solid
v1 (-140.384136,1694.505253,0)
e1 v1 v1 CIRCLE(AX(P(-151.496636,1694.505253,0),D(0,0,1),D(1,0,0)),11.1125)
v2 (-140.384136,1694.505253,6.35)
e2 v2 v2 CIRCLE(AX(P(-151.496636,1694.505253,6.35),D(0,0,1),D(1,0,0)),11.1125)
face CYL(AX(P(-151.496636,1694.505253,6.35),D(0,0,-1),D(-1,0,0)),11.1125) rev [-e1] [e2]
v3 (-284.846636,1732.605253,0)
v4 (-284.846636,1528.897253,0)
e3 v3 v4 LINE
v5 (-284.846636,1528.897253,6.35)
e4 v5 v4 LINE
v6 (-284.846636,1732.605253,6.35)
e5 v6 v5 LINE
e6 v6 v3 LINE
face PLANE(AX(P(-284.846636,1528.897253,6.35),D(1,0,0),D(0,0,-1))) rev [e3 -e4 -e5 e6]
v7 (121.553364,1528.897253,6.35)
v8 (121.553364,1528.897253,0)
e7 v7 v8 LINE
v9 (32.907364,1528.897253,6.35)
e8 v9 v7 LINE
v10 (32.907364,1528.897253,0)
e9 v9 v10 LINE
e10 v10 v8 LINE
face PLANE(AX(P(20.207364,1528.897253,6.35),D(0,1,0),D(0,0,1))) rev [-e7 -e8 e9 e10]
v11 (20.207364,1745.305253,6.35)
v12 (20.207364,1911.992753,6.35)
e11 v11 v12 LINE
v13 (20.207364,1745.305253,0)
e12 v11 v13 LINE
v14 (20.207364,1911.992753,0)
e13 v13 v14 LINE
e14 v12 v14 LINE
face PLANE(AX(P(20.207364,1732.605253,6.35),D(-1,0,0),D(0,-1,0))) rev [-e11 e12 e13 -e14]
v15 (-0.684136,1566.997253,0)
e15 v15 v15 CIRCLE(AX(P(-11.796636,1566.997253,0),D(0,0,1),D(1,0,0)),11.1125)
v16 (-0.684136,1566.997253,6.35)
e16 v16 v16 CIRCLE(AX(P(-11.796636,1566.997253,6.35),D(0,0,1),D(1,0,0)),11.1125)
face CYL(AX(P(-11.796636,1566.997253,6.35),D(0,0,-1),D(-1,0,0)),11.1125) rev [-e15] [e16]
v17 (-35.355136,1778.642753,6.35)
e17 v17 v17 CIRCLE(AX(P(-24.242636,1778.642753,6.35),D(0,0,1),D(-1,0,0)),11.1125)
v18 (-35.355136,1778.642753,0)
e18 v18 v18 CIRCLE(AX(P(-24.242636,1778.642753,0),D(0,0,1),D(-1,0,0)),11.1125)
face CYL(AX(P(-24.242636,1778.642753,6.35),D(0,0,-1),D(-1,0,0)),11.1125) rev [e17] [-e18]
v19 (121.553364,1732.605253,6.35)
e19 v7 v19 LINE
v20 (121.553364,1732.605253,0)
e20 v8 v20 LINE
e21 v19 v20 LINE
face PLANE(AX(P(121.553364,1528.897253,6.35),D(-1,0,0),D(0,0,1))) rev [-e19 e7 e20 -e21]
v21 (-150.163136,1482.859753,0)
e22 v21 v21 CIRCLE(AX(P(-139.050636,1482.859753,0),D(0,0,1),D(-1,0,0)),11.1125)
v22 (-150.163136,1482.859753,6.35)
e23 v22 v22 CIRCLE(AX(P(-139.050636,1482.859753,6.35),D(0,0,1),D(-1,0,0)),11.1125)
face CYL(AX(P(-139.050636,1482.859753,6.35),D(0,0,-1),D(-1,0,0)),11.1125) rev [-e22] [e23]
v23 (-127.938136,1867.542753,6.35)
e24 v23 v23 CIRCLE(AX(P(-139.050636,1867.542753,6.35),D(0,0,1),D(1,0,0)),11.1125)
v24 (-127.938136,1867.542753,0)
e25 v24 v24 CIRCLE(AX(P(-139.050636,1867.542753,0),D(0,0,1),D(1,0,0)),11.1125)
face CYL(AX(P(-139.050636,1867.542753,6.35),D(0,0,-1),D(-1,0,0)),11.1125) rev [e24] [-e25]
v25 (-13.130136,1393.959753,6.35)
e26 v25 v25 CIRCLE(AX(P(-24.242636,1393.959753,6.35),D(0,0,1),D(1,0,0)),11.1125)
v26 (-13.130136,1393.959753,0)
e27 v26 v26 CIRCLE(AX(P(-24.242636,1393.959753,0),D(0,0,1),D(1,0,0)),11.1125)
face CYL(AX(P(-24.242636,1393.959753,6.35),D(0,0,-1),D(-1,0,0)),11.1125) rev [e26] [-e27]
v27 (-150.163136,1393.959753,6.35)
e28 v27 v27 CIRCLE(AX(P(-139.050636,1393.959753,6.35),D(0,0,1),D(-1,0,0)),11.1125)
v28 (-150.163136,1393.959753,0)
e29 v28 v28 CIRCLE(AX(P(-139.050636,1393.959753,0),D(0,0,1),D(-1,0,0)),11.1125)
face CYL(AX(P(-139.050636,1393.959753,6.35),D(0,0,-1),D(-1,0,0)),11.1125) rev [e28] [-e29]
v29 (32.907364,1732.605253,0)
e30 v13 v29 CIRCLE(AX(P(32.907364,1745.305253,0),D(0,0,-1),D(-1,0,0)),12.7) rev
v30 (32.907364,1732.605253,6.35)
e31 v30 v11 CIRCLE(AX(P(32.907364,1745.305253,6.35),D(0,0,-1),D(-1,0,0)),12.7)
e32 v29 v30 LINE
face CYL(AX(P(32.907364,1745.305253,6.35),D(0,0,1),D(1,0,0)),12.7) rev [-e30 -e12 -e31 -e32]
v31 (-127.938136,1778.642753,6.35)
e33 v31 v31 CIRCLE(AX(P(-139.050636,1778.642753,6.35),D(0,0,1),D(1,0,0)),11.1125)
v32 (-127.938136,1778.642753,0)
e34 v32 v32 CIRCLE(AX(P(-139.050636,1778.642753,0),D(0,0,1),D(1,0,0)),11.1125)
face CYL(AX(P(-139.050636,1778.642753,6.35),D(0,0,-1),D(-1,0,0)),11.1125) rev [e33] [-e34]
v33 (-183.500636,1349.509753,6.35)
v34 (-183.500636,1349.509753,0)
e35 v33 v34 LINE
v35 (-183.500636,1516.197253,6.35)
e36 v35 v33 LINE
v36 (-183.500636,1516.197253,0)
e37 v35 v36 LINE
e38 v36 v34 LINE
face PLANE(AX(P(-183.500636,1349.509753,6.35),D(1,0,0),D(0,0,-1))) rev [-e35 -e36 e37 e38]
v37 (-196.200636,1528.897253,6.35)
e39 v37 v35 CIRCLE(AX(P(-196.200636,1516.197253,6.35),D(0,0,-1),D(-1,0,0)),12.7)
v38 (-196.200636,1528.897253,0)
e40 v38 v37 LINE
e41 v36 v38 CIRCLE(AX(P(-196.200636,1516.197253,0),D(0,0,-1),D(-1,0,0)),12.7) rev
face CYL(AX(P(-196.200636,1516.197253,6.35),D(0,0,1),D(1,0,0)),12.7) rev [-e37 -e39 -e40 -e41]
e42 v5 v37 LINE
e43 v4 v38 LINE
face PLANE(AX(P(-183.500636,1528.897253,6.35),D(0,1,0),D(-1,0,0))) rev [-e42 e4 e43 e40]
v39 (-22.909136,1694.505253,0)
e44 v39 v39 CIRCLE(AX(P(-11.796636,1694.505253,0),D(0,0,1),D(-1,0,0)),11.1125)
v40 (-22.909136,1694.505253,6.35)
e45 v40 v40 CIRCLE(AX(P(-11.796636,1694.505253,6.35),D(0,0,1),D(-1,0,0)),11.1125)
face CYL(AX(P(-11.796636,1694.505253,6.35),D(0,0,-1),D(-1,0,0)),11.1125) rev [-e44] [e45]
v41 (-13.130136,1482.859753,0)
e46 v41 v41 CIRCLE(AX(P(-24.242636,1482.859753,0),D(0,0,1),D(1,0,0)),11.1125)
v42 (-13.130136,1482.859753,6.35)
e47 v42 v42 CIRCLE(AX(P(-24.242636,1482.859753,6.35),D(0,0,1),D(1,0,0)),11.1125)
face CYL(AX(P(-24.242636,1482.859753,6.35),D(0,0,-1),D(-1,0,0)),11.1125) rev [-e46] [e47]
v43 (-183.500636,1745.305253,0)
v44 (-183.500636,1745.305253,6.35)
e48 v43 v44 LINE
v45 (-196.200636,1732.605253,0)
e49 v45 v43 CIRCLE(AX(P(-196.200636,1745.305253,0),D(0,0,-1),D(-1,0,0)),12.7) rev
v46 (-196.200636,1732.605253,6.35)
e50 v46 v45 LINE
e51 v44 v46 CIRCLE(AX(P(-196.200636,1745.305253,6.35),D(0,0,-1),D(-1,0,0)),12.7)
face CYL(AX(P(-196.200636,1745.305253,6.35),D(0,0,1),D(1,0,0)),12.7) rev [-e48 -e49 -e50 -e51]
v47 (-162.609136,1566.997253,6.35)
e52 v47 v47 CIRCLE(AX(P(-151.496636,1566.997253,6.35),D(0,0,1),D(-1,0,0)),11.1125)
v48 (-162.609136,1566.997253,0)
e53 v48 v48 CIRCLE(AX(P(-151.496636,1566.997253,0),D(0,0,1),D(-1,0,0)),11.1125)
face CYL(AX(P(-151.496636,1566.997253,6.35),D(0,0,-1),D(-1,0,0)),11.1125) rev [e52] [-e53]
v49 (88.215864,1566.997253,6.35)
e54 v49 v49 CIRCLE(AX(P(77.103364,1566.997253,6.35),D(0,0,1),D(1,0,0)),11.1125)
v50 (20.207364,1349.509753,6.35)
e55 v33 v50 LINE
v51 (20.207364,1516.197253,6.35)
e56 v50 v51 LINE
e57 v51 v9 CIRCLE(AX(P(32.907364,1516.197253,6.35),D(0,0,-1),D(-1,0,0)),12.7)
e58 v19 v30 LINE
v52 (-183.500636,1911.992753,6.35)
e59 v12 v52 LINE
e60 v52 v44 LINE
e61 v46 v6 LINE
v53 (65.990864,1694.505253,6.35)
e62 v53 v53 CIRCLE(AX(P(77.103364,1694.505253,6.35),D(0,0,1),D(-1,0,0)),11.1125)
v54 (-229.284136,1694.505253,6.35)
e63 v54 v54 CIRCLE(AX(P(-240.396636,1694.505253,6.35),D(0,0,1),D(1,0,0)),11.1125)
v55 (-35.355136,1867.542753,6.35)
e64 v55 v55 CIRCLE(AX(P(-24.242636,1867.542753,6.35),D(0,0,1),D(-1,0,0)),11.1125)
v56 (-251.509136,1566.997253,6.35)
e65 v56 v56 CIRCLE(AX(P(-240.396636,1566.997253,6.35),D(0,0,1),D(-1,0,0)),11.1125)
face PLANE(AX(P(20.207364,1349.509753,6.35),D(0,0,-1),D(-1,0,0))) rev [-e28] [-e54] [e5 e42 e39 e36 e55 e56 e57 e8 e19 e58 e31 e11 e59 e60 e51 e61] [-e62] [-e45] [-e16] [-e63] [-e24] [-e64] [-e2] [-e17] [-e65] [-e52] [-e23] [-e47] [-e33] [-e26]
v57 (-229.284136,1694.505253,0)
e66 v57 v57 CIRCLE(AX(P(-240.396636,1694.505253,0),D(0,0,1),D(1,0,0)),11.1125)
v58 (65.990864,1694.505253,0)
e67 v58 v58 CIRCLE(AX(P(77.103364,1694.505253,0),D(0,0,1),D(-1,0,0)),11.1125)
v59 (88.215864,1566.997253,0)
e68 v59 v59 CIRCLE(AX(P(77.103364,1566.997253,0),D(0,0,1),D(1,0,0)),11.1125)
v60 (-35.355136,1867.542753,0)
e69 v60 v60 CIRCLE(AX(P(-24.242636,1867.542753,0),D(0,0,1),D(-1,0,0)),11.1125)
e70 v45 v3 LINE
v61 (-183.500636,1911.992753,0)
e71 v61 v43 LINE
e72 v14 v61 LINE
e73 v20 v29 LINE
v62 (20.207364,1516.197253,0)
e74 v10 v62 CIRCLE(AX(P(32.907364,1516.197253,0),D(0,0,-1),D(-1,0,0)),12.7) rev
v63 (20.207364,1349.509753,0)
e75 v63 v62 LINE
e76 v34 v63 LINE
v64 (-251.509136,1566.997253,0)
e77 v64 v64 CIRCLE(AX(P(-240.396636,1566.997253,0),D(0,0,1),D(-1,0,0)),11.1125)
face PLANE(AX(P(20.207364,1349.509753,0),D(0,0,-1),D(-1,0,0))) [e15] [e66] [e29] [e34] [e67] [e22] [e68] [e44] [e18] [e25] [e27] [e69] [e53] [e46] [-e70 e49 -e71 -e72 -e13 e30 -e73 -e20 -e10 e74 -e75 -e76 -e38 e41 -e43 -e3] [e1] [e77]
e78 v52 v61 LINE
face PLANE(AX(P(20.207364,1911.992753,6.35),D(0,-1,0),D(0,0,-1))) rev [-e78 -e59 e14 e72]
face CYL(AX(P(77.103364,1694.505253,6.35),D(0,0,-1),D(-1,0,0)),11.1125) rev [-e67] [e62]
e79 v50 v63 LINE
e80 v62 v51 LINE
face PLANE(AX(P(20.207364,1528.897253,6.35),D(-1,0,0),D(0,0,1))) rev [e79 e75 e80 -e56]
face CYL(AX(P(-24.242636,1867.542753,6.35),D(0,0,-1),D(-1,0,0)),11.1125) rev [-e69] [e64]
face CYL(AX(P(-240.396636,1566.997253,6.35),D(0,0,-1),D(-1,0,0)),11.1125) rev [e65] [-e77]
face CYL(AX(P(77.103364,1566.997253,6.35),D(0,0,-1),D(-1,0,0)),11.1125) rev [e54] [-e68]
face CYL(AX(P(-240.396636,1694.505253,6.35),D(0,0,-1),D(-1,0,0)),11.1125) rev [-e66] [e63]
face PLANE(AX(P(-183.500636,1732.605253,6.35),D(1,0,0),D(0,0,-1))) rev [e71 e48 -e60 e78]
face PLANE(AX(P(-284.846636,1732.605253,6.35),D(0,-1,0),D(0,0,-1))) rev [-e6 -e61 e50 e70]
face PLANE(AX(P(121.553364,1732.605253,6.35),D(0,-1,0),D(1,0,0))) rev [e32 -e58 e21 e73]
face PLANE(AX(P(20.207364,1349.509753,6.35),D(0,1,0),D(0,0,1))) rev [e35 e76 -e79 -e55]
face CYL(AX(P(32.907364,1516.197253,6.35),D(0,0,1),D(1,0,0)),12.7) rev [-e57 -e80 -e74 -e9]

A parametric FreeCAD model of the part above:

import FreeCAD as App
import Part
import Sketcher
from FreeCAD import Vector
Q = App.Units.Quantity


def edges_at(feature, points):
    """Names of the edges that pass closest to the given points."""
    edges = feature.Shape.Edges
    near = lambda p: min(range(len(edges)), key=lambda i: edges[i].distToShape(Part.Vertex(*p))[0])
    return sorted({f"Edge{near(p) + 1}" for p in points})


def add_polygon(sketch, points):
    """Adds a closed chain of lines whose ends are joined by coincident constraints."""
    first, n = sketch.GeometryCount, len(points)
    for a, b in zip(points, points[1:] + points[:1]):
        sketch.addGeometry(Part.LineSegment(App.Vector(*a, 0), App.Vector(*b, 0)), False)
    for i in range(n):
        sketch.addConstraint(Sketcher.Constraint("Coincident", first + i, 2, first + (i + 1) % n, 1))

doc = App.newDocument("Part")
body = doc.addObject("PartDesign::Body", "Body")

sketch1 = body.newObject("Sketcher::SketchObject", "Sketch")
sketch1.AttachmentSupport = (doc.getObject("XY_Plane"), [""])
sketch1.MapMode = "FlatFace"
add_polygon(sketch1, [(-184, 1350), (20, 1350), (20, 1529), (122, 1529), (122, 1733), (20, 1733), (20, 1912), (-184, 1912), (-184, 1733), (-285, 1733), (-285, 1529), (-184, 1529)])
sketch1.addGeometry(Part.Circle(Vector(-24, 1394, 0), Vector(0, 0, 1), 11), False)
sketch1.addGeometry(Part.Circle(Vector(-24, 1483, 0), Vector(0, 0, 1), 11), False)
sketch1.addGeometry(Part.Circle(Vector(77, 1567, 0), Vector(0, 0, 1), 11), False)
sketch1.addGeometry(Part.Circle(Vector(-12, 1567, 0), Vector(0, 0, 1), 11), False)
sketch1.addGeometry(Part.Circle(Vector(-139, 1394, 0), Vector(0, 0, 1), 11), False)
sketch1.addGeometry(Part.Circle(Vector(-139, 1483, 0), Vector(0, 0, 1), 11), False)
sketch1.addGeometry(Part.Circle(Vector(-151, 1567, 0), Vector(0, 0, 1), 11), False)
sketch1.addGeometry(Part.Circle(Vector(-240, 1567, 0), Vector(0, 0, 1), 11), False)
sketch1.addGeometry(Part.Circle(Vector(77, 1695, 0), Vector(0, 0, 1), 11), False)
sketch1.addGeometry(Part.Circle(Vector(-12, 1695, 0), Vector(0, 0, 1), 11), False)
sketch1.addGeometry(Part.Circle(Vector(-24, 1779, 0), Vector(0, 0, 1), 11), False)
sketch1.addGeometry(Part.Circle(Vector(-24, 1868, 0), Vector(0, 0, 1), 11), False)
sketch1.addGeometry(Part.Circle(Vector(-151, 1695, 0), Vector(0, 0, 1), 11), False)
sketch1.addGeometry(Part.Circle(Vector(-240, 1695, 0), Vector(0, 0, 1), 11), False)
sketch1.addGeometry(Part.Circle(Vector(-139, 1779, 0), Vector(0, 0, 1), 11), False)
sketch1.addGeometry(Part.Circle(Vector(-139, 1868, 0), Vector(0, 0, 1), 11), False)
sketch1.addConstraint([
    Sketcher.Constraint("Horizontal", 0),
    Sketcher.Constraint("Vertical", 1),
    Sketcher.Constraint("Horizontal", 2),
    Sketcher.Constraint("Vertical", 3),
    Sketcher.Constraint("Horizontal", 4),
    Sketcher.Constraint("Vertical", 5),
    Sketcher.Constraint("Horizontal", 6),
    Sketcher.Constraint("Vertical", 7),
    Sketcher.Constraint("Horizontal", 8),
    Sketcher.Constraint("Vertical", 9),
    Sketcher.Constraint("Horizontal", 10),
    Sketcher.Constraint("Vertical", 11),
    Sketcher.Constraint("Equal", 12, 13),
    Sketcher.Constraint("Equal", 13, 14),
    Sketcher.Constraint("Equal", 14, 15),
    Sketcher.Constraint("Equal", 15, 16),
    Sketcher.Constraint("Equal", 16, 17),
    Sketcher.Constraint("Equal", 17, 18),
    Sketcher.Constraint("Equal", 18, 19),
    Sketcher.Constraint("Equal", 19, 20),
    Sketcher.Constraint("Equal", 20, 21),
    Sketcher.Constraint("Equal", 21, 22),
    Sketcher.Constraint("Equal", 22, 23),
    Sketcher.Constraint("Equal", 23, 24),
    Sketcher.Constraint("Equal", 24, 25),
    Sketcher.Constraint("Equal", 25, 26),
    Sketcher.Constraint("Equal", 26, 27),
    Sketcher.Constraint("Horizontal", 14, 3, 15, 3),
    Sketcher.Constraint("Horizontal", 12, 3, 16, 3),
    Sketcher.Constraint("Horizontal", 13, 3, 17, 3),
    Sketcher.Constraint("Horizontal", 15, 3, 18, 3),
    Sketcher.Constraint("Horizontal", 18, 3, 19, 3),
    Sketcher.Constraint("Horizontal", 20, 3, 21, 3),
    Sketcher.Constraint("Horizontal", 21, 3, 24, 3),
    Sketcher.Constraint("Horizontal", 24, 3, 25, 3),
    Sketcher.Constraint("Horizontal", 22, 3, 26, 3),
    Sketcher.Constraint("Horizontal", 23, 3, 27, 3),
    Sketcher.Constraint("Horizontal", 4, 2, 7, 2),
    Sketcher.Constraint("Horizontal", 2, 2, 9, 2),
    Sketcher.Constraint("Vertical", 12, 3, 13, 3),
    Sketcher.Constraint("Vertical", 16, 3, 17, 3),
    Sketcher.Constraint("Vertical", 14, 3, 20, 3),
    Sketcher.Constraint("Vertical", 15, 3, 21, 3),
    Sketcher.Constraint("Vertical", 13, 3, 22, 3),
    Sketcher.Constraint("Vertical", 22, 3, 23, 3),
    Sketcher.Constraint("Vertical", 18, 3, 24, 3),
    Sketcher.Constraint("Vertical", 19, 3, 25, 3),
    Sketcher.Constraint("Vertical", 17, 3, 26, 3),
    Sketcher.Constraint("Vertical", 26, 3, 27, 3),
    Sketcher.Constraint("Vertical", 1, 2, 4, 2),
    Sketcher.Constraint("Vertical", 7, 2, 10, 2),
    Sketcher.Constraint("Equal", 4, 8),
    Sketcher.Constraint("Equal", 6, 3),
    Sketcher.Constraint("Equal", 1, 5),
    Sketcher.Constraint("Diameter", 12, Q("0.875 in")),
    Sketcher.Constraint("DistanceX", 19, 3, 15, 3, Q("9 in")),
    Sketcher.Constraint("DistanceX", 18, 3, 20, 3, Q("9 in")),
    Sketcher.Constraint("DistanceX", 0, 1, 0, 2, Q("8.02 in")),
    Sketcher.Constraint("DistanceX", 2, 1, 2, 2, Q("3.99 in")),
    Sketcher.Constraint("DistanceY", 12, 3, 13, 3, Q("3.5 in")),
    Sketcher.Constraint("DistanceX", 15, 3, 14, 3, Q("3.5 in")),
    Sketcher.Constraint("DistanceY", 22, 3, 23, 3, Q("3.5 in")),
    Sketcher.Constraint("DistanceY", 1, 2, 15, 3, Q("1.5 in")),
    Sketcher.Constraint("DistanceY", 20, 3, 3, 2, Q("1.5 in")),
    Sketcher.Constraint("DistanceY", 1, 1, 1, 2, Q("7.0625 in")),
    Sketcher.Constraint("DistanceX", 13, 3, 14, 3, Q("3.99 in")),
    Sketcher.Constraint("DistanceX", 16, 3, 12, 3, Q("4.52 in")),
    Sketcher.Constraint("DistanceX", 12, 3, 0, 2, Q("1.75 in")),
    Sketcher.Constraint("DistanceY", 0, 2, 12, 3, Q("1.75 in")),
    Sketcher.Constraint("DistanceY", 23, 3, 5, 2, Q("1.75 in")),
    Sketcher.Constraint("DistanceX", 12, 3, -1, 1, 24.242636),
    Sketcher.Constraint("DistanceY", -1, 1, 12, 3, 1393.959753),
])
pad1 = body.newObject("PartDesign::Pad", "Pad")
pad1.Profile = sketch1
pad1.Length = Q("0.25 in")
doc.recompute()

fillet = body.newObject("PartDesign::Fillet", "Fillet")
fillet.Base = (pad1, edges_at(pad1, [
    (-183.501, 1528.897, 3.175),
    (-183.501, 1732.605, 3.175),
    (20.207, 1732.605, 3.175),
    (20.207, 1528.897, 3.175),
]))
fillet.Radius = Q("0.5 in")

doc.recompute()
